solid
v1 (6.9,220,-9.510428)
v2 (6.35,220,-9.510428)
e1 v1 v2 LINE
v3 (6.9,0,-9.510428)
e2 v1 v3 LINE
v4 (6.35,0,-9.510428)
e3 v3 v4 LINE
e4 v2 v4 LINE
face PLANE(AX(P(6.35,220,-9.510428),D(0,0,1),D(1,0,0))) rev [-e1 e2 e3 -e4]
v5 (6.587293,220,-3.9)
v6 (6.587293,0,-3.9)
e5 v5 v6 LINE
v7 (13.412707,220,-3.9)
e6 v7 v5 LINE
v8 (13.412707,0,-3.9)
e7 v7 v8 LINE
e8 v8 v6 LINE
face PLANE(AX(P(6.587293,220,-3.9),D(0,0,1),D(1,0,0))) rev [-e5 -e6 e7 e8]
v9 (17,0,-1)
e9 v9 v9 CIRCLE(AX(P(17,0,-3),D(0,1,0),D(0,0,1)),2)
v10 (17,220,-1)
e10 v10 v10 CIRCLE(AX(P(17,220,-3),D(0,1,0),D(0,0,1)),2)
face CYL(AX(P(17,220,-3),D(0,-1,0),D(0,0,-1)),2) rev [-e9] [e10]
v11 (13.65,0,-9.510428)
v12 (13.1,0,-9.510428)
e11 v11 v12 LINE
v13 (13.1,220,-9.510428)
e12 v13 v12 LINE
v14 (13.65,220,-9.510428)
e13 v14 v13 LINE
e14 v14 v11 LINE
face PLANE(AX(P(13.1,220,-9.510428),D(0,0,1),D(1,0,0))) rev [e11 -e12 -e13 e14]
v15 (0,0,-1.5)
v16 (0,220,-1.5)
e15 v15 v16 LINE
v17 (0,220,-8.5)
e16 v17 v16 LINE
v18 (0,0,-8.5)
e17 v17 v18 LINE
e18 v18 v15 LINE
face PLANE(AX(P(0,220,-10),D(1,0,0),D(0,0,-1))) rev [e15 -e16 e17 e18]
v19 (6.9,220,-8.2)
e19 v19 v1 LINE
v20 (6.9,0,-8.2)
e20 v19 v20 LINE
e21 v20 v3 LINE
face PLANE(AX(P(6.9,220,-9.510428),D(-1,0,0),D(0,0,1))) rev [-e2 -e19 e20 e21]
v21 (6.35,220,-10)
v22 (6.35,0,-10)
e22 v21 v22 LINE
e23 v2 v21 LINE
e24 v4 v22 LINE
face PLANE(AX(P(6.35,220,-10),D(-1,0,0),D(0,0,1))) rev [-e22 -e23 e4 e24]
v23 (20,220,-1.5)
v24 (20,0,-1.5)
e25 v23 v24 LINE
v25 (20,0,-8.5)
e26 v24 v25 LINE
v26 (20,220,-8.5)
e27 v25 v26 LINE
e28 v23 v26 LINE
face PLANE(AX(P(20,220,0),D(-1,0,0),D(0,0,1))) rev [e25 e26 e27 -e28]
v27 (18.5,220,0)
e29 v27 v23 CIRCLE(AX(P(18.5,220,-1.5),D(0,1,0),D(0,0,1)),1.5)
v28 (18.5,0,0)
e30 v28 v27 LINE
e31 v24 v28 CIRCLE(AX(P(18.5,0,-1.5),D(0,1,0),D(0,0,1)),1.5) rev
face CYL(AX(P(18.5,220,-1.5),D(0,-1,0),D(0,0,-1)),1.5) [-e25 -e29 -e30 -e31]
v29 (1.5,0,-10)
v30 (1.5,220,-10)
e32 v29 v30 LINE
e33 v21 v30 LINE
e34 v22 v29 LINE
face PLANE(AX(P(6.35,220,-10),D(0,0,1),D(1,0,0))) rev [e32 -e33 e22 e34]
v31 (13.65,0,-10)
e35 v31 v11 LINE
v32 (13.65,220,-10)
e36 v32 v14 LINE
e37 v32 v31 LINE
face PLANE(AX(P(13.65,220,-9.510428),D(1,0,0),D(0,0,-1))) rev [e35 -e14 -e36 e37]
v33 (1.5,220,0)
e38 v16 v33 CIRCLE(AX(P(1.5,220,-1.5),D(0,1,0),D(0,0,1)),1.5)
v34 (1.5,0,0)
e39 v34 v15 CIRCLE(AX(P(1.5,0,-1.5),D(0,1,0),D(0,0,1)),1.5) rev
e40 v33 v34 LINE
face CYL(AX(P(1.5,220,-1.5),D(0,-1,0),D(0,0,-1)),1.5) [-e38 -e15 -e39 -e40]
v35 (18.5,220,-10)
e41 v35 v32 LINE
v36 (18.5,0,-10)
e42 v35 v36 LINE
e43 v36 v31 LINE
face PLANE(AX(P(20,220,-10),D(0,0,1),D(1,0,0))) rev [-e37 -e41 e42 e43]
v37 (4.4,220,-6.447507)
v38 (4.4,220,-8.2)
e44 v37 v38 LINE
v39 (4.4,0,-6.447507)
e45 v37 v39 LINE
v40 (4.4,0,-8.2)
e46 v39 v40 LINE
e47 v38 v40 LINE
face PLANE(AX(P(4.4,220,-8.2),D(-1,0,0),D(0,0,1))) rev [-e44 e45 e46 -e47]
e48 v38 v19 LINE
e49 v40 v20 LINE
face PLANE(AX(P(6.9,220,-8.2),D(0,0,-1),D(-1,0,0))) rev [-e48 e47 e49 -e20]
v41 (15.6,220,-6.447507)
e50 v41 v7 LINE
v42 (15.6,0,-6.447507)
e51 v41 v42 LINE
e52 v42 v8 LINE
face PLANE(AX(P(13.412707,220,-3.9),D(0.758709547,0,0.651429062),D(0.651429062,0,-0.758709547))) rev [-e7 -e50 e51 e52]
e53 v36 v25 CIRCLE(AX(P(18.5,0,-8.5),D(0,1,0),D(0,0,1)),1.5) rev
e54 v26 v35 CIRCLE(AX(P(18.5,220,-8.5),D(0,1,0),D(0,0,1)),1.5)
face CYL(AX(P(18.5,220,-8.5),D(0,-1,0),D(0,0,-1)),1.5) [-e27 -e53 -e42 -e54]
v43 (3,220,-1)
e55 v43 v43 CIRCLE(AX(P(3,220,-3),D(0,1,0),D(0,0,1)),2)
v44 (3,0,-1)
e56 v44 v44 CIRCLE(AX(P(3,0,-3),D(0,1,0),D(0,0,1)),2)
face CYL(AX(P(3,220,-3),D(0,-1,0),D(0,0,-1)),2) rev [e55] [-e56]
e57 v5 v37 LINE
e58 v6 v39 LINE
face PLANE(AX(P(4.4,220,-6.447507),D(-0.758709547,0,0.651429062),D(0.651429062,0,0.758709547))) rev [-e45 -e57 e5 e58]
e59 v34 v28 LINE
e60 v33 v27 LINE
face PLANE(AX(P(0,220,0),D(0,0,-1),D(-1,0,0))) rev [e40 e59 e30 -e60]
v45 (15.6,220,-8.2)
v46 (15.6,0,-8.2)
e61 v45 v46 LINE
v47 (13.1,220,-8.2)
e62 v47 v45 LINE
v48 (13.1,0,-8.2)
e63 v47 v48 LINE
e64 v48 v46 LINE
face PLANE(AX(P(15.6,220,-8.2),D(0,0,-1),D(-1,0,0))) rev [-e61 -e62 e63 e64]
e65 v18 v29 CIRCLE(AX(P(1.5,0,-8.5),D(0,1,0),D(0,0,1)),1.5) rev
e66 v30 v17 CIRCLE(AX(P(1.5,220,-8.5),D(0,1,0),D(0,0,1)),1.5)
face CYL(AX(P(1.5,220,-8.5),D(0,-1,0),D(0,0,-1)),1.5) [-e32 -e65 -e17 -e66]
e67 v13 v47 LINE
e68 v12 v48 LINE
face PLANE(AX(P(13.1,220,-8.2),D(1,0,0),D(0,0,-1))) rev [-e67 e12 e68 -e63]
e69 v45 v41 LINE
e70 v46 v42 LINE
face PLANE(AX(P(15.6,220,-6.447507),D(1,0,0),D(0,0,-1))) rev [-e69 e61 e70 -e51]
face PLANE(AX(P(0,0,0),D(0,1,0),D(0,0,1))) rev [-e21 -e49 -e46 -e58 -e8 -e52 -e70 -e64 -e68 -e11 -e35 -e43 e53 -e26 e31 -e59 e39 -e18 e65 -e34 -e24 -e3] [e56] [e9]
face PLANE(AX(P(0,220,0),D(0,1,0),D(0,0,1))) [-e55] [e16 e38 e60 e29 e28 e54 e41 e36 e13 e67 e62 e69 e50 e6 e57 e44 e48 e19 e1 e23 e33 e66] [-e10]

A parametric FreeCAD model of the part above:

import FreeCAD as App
import Part
import Sketcher

V = App.Vector
Q = App.Units.Quantity


def edges_at(feature, points):
    """Names of the edges that pass closest to the given points."""
    edges = feature.Shape.Edges
    near = lambda p: min(range(len(edges)), key=lambda i: edges[i].distToShape(Part.Vertex(*p))[0])
    return sorted({f"Edge{near(p) + 1}" for p in points})


def add_polygon(sketch, points):
    """Adds a closed chain of lines whose ends are joined by coincident constraints."""
    first, n = sketch.GeometryCount, len(points)
    for a, b in zip(points, points[1:] + points[:1]):
        sketch.addGeometry(Part.LineSegment(App.Vector(*a, 0), App.Vector(*b, 0)), False)
    for i in range(n):
        sketch.addConstraint(Sketcher.Constraint("Coincident", first + i, 2, first + (i + 1) % n, 1))

doc = App.newDocument("Part")
body = doc.addObject("PartDesign::Body", "Body")

# Sketch on XZ plane
sketch1 = doc.addObject("Sketcher::SketchObject", "Sketch")
body.addObject(sketch1)
sketch1.AttachmentSupport = (doc.XZ_Plane, [""])
sketch1.MapMode = "FlatFace"
add_polygon(sketch1, [(0, 0), (20, 0), (20, -10), (13.65, -10), (13.65, -9.510428), (13.1, -9.510428), (13.1, -8.2), (15.6, -8.2), (15.6, -6.447507), (13.412707, -3.9), (6.587293, -3.9), (4.4, -6.447507), (4.4, -8.2), (6.9, -8.2), (6.9, -9.510428), (6.35, -9.510428), (6.35, -10), (0, -10)])  # lines 0-17
sketch1.addGeometry(Part.Circle(V(3, -3, 0), V(0, 0, 1), 2), False)  # 18
sketch1.addGeometry(Part.Circle(V(17, -3, 0), V(0, 0, 1), 2), False)  # 19
sketch1.addConstraint(Sketcher.Constraint("Horizontal", 0))
sketch1.addConstraint(Sketcher.Constraint("Vertical", 1))
sketch1.addConstraint(Sketcher.Constraint("Horizontal", 2))
sketch1.addConstraint(Sketcher.Constraint("Vertical", 3))
sketch1.addConstraint(Sketcher.Constraint("Horizontal", 4))
sketch1.addConstraint(Sketcher.Constraint("Vertical", 5))
sketch1.addConstraint(Sketcher.Constraint("Horizontal", 6))
sketch1.addConstraint(Sketcher.Constraint("Vertical", 7))
sketch1.addConstraint(Sketcher.Constraint("Horizontal", 9))
sketch1.addConstraint(Sketcher.Constraint("Vertical", 11))
sketch1.addConstraint(Sketcher.Constraint("Horizontal", 12))
sketch1.addConstraint(Sketcher.Constraint("Vertical", 13))
sketch1.addConstraint(Sketcher.Constraint("Horizontal", 14))
sketch1.addConstraint(Sketcher.Constraint("Vertical", 15))
sketch1.addConstraint(Sketcher.Constraint("Horizontal", 16))
sketch1.addConstraint(Sketcher.Constraint("Vertical", 17))
sketch1.addConstraint(Sketcher.Constraint("Coincident", 17, 2, -1, 1))
sketch1.addConstraint(Sketcher.Constraint("Equal", 18, 19))
sketch1.addConstraint(Sketcher.Constraint("Horizontal", 18, 3, 19, 3))
sketch1.addConstraint(Sketcher.Constraint("Horizontal", 7, 2, 10, 2))
sketch1.addConstraint(Sketcher.Constraint("Horizontal", 6, 2, 11, 2))
sketch1.addConstraint(Sketcher.Constraint("Horizontal", 4, 2, 13, 2))
sketch1.addConstraint(Sketcher.Constraint("Horizontal", 2, 2, 15, 2))
sketch1.addConstraint(Sketcher.Constraint("Equal", 6, 12))
sketch1.addConstraint(Sketcher.Constraint("Equal", 4, 14))
sketch1.addConstraint(Sketcher.Constraint("Equal", 2, 16))
sketch1.addConstraint(Sketcher.Constraint("Equal", 8, 10))
sketch1.addConstraint(Sketcher.Constraint("Diameter", 18, Q("4 mm")))
sketch1.addConstraint(Sketcher.Constraint("DistanceX", 0, 1, 0, 2, Q("20 mm")))
sketch1.addConstraint(Sketcher.Constraint("DistanceY", 1, 2, 1, 1, Q("10 mm")))
sketch1.addConstraint(Sketcher.Constraint("DistanceX", 6, 1, 6, 2, Q("2.5 mm")))
sketch1.addConstraint(Sketcher.Constraint("DistanceX", -1, 1, 18, 3, Q("3 mm")))
sketch1.addConstraint(Sketcher.Constraint("DistanceY", 18, 3, -1, 1, Q("3 mm")))
sketch1.addConstraint(Sketcher.Constraint("DistanceX", -1, 1, 19, 3, Q("17 mm")))
sketch1.addConstraint(Sketcher.Constraint("DistanceX", 2, 2, 2, 1, Q("6.35 mm")))
sketch1.addConstraint(Sketcher.Constraint("DistanceX", 4, 2, 4, 1, Q("0.55 mm")))
sketch1.addConstraint(Sketcher.Constraint("DistanceY", 5, 2, -1, 1, Q("8.2 mm")))
sketch1.addConstraint(Sketcher.Constraint("DistanceY", 8, 2, -1, 1, Q("3.9 mm")))
sketch1.addConstraint(Sketcher.Constraint("DistanceX", 9, 2, 9, 1, Q("6.825414 mm")))
sketch1.addConstraint(Sketcher.Constraint("DistanceY", 3, 1, 3, 2, Q("0.489572 mm")))
sketch1.addConstraint(Sketcher.Constraint("DistanceY", 7, 1, 7, 2, Q("1.752493 mm")))
pad1 = doc.addObject("PartDesign::Pad", "Pad")
body.addObject(pad1)
pad1.Profile = sketch1
pad1.Length = 220
pad1.Reversed = True
doc.recompute()

fillet = doc.addObject("PartDesign::Fillet", "Fillet")
body.addObject(fillet)
fillet.Base = (pad1, edges_at(pad1, [
    (0, 110, -10),
    (20, 110, -10),
    (20, 110, 0),
    (0, 110, 0),
]))
fillet.Radius = 1.5

doc.recompute()
